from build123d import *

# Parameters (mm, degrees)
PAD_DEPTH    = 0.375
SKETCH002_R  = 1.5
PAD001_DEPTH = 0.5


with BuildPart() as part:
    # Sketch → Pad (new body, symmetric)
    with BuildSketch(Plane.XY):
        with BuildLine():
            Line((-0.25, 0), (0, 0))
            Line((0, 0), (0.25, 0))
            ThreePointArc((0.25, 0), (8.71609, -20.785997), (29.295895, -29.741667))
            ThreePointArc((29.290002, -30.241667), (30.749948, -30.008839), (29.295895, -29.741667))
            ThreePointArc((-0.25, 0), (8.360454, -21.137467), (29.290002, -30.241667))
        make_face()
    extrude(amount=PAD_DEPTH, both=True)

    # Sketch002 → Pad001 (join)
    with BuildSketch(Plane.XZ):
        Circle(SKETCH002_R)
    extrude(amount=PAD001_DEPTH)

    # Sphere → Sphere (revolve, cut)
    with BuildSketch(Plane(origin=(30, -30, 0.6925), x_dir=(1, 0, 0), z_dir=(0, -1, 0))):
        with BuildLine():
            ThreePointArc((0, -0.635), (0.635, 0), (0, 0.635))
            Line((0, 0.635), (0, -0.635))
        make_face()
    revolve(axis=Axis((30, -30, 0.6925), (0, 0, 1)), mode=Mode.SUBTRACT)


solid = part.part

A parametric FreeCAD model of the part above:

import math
import FreeCAD as App
import Part
import Sketcher

V = App.Vector
Q = App.Units.Quantity

doc = App.newDocument("Part")
body = doc.addObject("PartDesign::Body", "Body")

# Sketch on XY plane
sketch1 = body.newObject("Sketcher::SketchObject", "Sketch")
sketch1.AttachmentSupport = (doc.getObject("XY_Plane"), [""])
sketch1.MapMode = "FlatFace"
sketch1.addGeometry([
    Part.LineSegment(V(0.2, 0, 0), V(-0.2, 0, 0)),
    Part.ArcOfCircle(Part.Circle(V(30, 0, 0), V(0, 0, 1), 30.3), math.radians(-180), math.radians(-91)),
    Part.ArcOfCircle(Part.Circle(V(30, -30, 0), V(0, 0, 1), 0.8), math.radians(-161), math.radians(160)),
    Part.ArcOfCircle(Part.Circle(V(30, 0, 0), V(0, 0, 1), 29.8), math.radians(-180), math.radians(-91)),
], False)
sketch1.addConstraint([
    Sketcher.Constraint("Coincident", 0, 2, 1, 1),
    Sketcher.Constraint("Coincident", 1, 2, 2, 1),
    Sketcher.Constraint("Coincident", 2, 2, 3, 2),
    Sketcher.Constraint("Coincident", 3, 1, 0, 1),
    Sketcher.Constraint("Horizontal", 0),
    Sketcher.Constraint("Coincident", 3, 3, 1, 3),
    Sketcher.Constraint("Symmetric", 0, 2, 3, 1, -1, 1),
    Sketcher.Constraint("PointOnObject", 1, 3, -1),
    Sketcher.Constraint("Vertical", 2, 3, 3, 3),
    Sketcher.Constraint("Radius", 2, Q("0.75 mm")),
    Sketcher.Constraint("Radius", 3, Q("29.750001 mm")),
    Sketcher.Constraint("DistanceX", 0, 2, 0, 1, Q("0.5 mm")),
    Sketcher.Constraint("DistanceY", 2, 3, -1, 1, Q("30 mm")),
])
pad1 = body.newObject("PartDesign::Pad", "Pad")
pad1.Profile = sketch1
pad1.Length = 0.75
pad1.Midplane = True

# Sketch on XZ plane
sketch2 = body.newObject("Sketcher::SketchObject", "Sketch001")
sketch2.AttachmentSupport = (doc.getObject("XZ_Plane"), [""])
sketch2.MapMode = "FlatFace"
sketch2.addGeometry(Part.Circle(V(0, 0, 0), V(0, 0, 1), 1.5), False)
sketch2.addConstraint([
    Sketcher.Constraint("Coincident", 0, 3, -1, 1),
    Sketcher.Constraint("Diameter", 0, Q("3 mm")),
])
pad2 = body.newObject("PartDesign::Pad", "Pad001")
pad2.Profile = sketch2
pad2.Length = 0.5

# Sketch on XZ plane
sketch3 = body.newObject("Sketcher::SketchObject", "Sketch002")
sketch3.AttachmentSupport = (doc.getObject("XZ_Plane"), [""])
sketch3.MapMode = "FlatFace"
sketch3.AttachmentOffset = App.Placement(V(0, 0, 30), App.Rotation())
sketch3.addGeometry([
    Part.ArcOfCircle(Part.Circle(V(30, 0.7, 0), V(0, 0, 1), 0.6), math.radians(-90), math.radians(90)),
    Part.LineSegment(V(30, 1.3, 0), V(30, 0.1, 0)),
], False)
sketch3.addGeometry(Part.LineSegment(V(30, 0.1, 0), V(30, 1.3, 0)), True)  # axis
sketch3.addConstraint([
    Sketcher.Constraint("Coincident", 0, 1, 1, 2),
    Sketcher.Constraint("Coincident", 1, 1, 0, 2),
    Sketcher.Constraint("Vertical", 1),
    Sketcher.Constraint("Vertical", 2),
    Sketcher.Constraint("Coincident", 2, 1, 0, 1),
    Sketcher.Constraint("Equal", 1, 2),
    Sketcher.Constraint("DistanceX", -1, 1, 0, 3, Q("30 mm")),
    Sketcher.Constraint("DistanceX", -1, 1, 0, 1, Q("30 mm")),
    Sketcher.Constraint("Radius", 0, Q("0.635 mm")),
    Sketcher.Constraint("DistanceY", -1, 1, 0, 3, Q("0.6925 mm")),
])
groove = body.newObject("PartDesign::Groove", "Groove")
groove.Profile = sketch3
groove.ReferenceAxis = (sketch3, ["Axis0"])
groove.Angle = 360

doc.recompute()
